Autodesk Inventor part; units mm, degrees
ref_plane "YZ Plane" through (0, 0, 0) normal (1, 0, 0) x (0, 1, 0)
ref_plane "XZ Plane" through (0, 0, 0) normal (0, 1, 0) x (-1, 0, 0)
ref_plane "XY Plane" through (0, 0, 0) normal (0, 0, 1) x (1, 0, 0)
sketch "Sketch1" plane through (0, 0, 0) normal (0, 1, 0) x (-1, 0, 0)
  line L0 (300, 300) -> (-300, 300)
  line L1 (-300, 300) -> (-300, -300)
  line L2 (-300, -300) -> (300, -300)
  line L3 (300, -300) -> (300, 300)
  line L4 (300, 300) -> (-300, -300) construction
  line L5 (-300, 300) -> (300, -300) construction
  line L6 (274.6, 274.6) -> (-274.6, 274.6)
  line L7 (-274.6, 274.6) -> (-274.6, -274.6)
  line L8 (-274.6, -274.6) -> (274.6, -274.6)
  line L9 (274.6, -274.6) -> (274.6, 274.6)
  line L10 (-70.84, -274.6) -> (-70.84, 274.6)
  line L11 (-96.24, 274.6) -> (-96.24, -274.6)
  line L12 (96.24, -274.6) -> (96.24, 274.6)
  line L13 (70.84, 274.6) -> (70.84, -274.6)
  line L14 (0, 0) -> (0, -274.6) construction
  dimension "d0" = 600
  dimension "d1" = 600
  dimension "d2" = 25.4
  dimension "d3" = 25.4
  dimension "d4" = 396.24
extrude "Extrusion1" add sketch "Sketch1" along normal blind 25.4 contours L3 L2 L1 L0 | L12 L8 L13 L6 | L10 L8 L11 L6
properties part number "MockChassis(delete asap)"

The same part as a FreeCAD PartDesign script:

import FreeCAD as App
import Part
import Sketcher

doc = App.newDocument("Part")
params = doc.addObject("Spreadsheet::Sheet", "Params")
for row, (alias, value) in enumerate([
    ("sketch1_width", "600 mm"),
    ("pad1_length", "25.4 mm"),
], start=1):
    params.set(f"A{row}", alias)
    params.set(f"B{row}", "=" + value)
    params.setAlias(f"B{row}", alias)

body = doc.addObject("PartDesign::Body", "Body")

# Sketch on XZ plane
sketch1 = body.newObject("Sketcher::SketchObject", "Sketch")
sketch1.AttachmentSupport = (doc.getObject("XZ_Plane"), [""])
sketch1.MapMode = "FlatFace"
sketch1.addGeometry(Part.LineSegment(App.Vector(-300, -300, 0), App.Vector(-300, 300, 0)), False)
sketch1.addGeometry(Part.LineSegment(App.Vector(-300, 300, 0), App.Vector(300, 300, 0)), False)
sketch1.addGeometry(Part.LineSegment(App.Vector(300, 300, 0), App.Vector(300, -300, 0)), False)
sketch1.addGeometry(Part.LineSegment(App.Vector(300, -300, 0), App.Vector(-300, -300, 0)), False)
sketch1.addGeometry(Part.LineSegment(App.Vector(-96.24, 274.6, 0), App.Vector(-274.6, 274.6, 0)), False)
sketch1.addGeometry(Part.LineSegment(App.Vector(-274.6, 274.6, 0), App.Vector(-274.6, -274.6, 0)), False)
sketch1.addGeometry(Part.LineSegment(App.Vector(-274.6, -274.6, 0), App.Vector(-96.24, -274.6, 0)), False)
sketch1.addGeometry(Part.LineSegment(App.Vector(-96.24, -274.6, 0), App.Vector(-96.24, 274.6, 0)), False)
sketch1.addGeometry(Part.LineSegment(App.Vector(70.84, 274.6, 0), App.Vector(-70.84, 274.6, 0)), False)
sketch1.addGeometry(Part.LineSegment(App.Vector(-70.84, 274.6, 0), App.Vector(-70.84, -274.6, 0)), False)
sketch1.addGeometry(Part.LineSegment(App.Vector(-70.84, -274.6, 0), App.Vector(70.84, -274.6, 0)), False)
sketch1.addGeometry(Part.LineSegment(App.Vector(70.84, -274.6, 0), App.Vector(70.84, 274.6, 0)), False)
sketch1.addGeometry(Part.LineSegment(App.Vector(274.6, 274.6, 0), App.Vector(96.24, 274.6, 0)), False)
sketch1.addGeometry(Part.LineSegment(App.Vector(96.24, 274.6, 0), App.Vector(96.24, -274.6, 0)), False)
sketch1.addGeometry(Part.LineSegment(App.Vector(96.24, -274.6, 0), App.Vector(274.6, -274.6, 0)), False)
sketch1.addGeometry(Part.LineSegment(App.Vector(274.6, -274.6, 0), App.Vector(274.6, 274.6, 0)), False)
sketch1.addConstraint(Sketcher.Constraint("Coincident", 0, 2, 1, 1))
sketch1.addConstraint(Sketcher.Constraint("Coincident", 1, 2, 2, 1))
sketch1.addConstraint(Sketcher.Constraint("Coincident", 2, 2, 3, 1))
sketch1.addConstraint(Sketcher.Constraint("Coincident", 3, 2, 0, 1))
sketch1.addConstraint(Sketcher.Constraint("Coincident", 4, 2, 5, 1))
sketch1.addConstraint(Sketcher.Constraint("Coincident", 5, 2, 6, 1))
sketch1.addConstraint(Sketcher.Constraint("Coincident", 6, 2, 7, 1))
sketch1.addConstraint(Sketcher.Constraint("Coincident", 7, 2, 4, 1))
sketch1.addConstraint(Sketcher.Constraint("Coincident", 8, 2, 9, 1))
sketch1.addConstraint(Sketcher.Constraint("Coincident", 9, 2, 10, 1))
sketch1.addConstraint(Sketcher.Constraint("Coincident", 10, 2, 11, 1))
sketch1.addConstraint(Sketcher.Constraint("Coincident", 11, 2, 8, 1))
sketch1.addConstraint(Sketcher.Constraint("Coincident", 12, 2, 13, 1))
sketch1.addConstraint(Sketcher.Constraint("Coincident", 13, 2, 14, 1))
sketch1.addConstraint(Sketcher.Constraint("Coincident", 14, 2, 15, 1))
sketch1.addConstraint(Sketcher.Constraint("Coincident", 15, 2, 12, 1))
sketch1.addConstraint(Sketcher.Constraint("Vertical", 0))
sketch1.addConstraint(Sketcher.Constraint("Horizontal", 1))
sketch1.addConstraint(Sketcher.Constraint("Vertical", 2))
sketch1.addConstraint(Sketcher.Constraint("Horizontal", 3))
sketch1.addConstraint(Sketcher.Constraint("Horizontal", 4))
sketch1.addConstraint(Sketcher.Constraint("Vertical", 5))
sketch1.addConstraint(Sketcher.Constraint("Horizontal", 6))
sketch1.addConstraint(Sketcher.Constraint("Vertical", 7))
sketch1.addConstraint(Sketcher.Constraint("Horizontal", 8))
sketch1.addConstraint(Sketcher.Constraint("Vertical", 9))
sketch1.addConstraint(Sketcher.Constraint("Horizontal", 10))
sketch1.addConstraint(Sketcher.Constraint("Vertical", 11))
sketch1.addConstraint(Sketcher.Constraint("Horizontal", 12))
sketch1.addConstraint(Sketcher.Constraint("Vertical", 13))
sketch1.addConstraint(Sketcher.Constraint("Horizontal", 14))
sketch1.addConstraint(Sketcher.Constraint("Vertical", 15))
sketch1.addConstraint(Sketcher.Constraint("Symmetric", 0, 2, 2, 2, -1, 1))
sketch1.addConstraint(Sketcher.Constraint("Symmetric", 8, 2, 10, 2, -1, 1))
sketch1.addConstraint(Sketcher.Constraint("Symmetric", 6, 2, 12, 2, -1, 1))
sketch1.addConstraint(Sketcher.Constraint("Symmetric", 4, 2, 14, 2, -1, 1))
sketch1.addConstraint(Sketcher.Constraint("Horizontal", 7, 2, 8, 2))
sketch1.addConstraint(Sketcher.Constraint("Horizontal", 6, 2, 9, 2))
sketch1.addConstraint(Sketcher.Constraint("Equal", 3, 0))
sketch1.addConstraint(Sketcher.Constraint("DistanceX", 1, 1, 1, 2, 600.0))
sketch1.addConstraint(Sketcher.Constraint("DistanceX", 0, 2, 4, 2, 25.4))
sketch1.addConstraint(Sketcher.Constraint("DistanceY", 4, 2, 0, 2, 25.4))
sketch1.addConstraint(Sketcher.Constraint("DistanceX", 7, 2, 8, 2, 25.4))
sketch1.addConstraint(Sketcher.Constraint("DistanceX", 6, 2, 2, 2, 396.24))
sketch1.setExpression("Constraints[39]", "Params.sketch1_width")
pad1 = body.newObject("PartDesign::Pad", "Pad")
pad1.Profile = sketch1
pad1.setExpression("Length", "Params.pad1_length")
pad1.Reversed = True

doc.recompute()
